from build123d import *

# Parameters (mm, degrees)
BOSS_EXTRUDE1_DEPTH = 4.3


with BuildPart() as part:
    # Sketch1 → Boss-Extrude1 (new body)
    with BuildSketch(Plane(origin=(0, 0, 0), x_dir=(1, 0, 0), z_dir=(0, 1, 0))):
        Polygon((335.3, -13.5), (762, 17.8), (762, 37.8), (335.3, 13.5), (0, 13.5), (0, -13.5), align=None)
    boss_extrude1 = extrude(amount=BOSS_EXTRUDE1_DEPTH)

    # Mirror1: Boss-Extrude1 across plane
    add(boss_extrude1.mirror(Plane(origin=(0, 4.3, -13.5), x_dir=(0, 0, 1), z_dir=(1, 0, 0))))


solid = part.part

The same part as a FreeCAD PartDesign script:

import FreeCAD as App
import Part
import Sketcher
from FreeCAD import Vector
Q = App.Units.Quantity

doc = App.newDocument("Part")
body = doc.addObject("PartDesign::Body", "Body")

sketch1 = body.newObject("Sketcher::SketchObject", "Sketch")
sketch1.AttachmentSupport = (doc.getObject("XZ_Plane"), [""])
sketch1.MapMode = "FlatFace"
sketch1.addGeometry([
    Part.LineSegment(Vector(335, 14, 0), Vector(762, -18, 0)),
    Part.LineSegment(Vector(762, -18, 0), Vector(762, -38, 0)),
    Part.LineSegment(Vector(762, -38, 0), Vector(335, -14, 0)),
    Part.LineSegment(Vector(335, -14, 0), Vector(0, -14, 0)),
    Part.LineSegment(Vector(0, -14, 0), Vector(0, 14, 0)),
    Part.LineSegment(Vector(0, 14, 0), Vector(335, 14, 0)),
], False)
sketch1.addConstraint([
    Sketcher.Constraint("Coincident", 0, 2, 1, 1),
    Sketcher.Constraint("Coincident", 1, 2, 2, 1),
    Sketcher.Constraint("Coincident", 2, 2, 3, 1),
    Sketcher.Constraint("Coincident", 3, 2, 4, 1),
    Sketcher.Constraint("Coincident", 4, 2, 5, 1),
    Sketcher.Constraint("Coincident", 5, 2, 0, 1),
    Sketcher.Constraint("Vertical", 1),
    Sketcher.Constraint("Horizontal", 3),
    Sketcher.Constraint("Vertical", 4),
    Sketcher.Constraint("Horizontal", 5),
    Sketcher.Constraint("Symmetric", 3, 2, 4, 2, -1, 1),
    Sketcher.Constraint("Vertical", 2, 2, 5, 2),
    Sketcher.Constraint("DistanceY", 1, 2, 1, 1, Q("20 mm")),
    Sketcher.Constraint("DistanceY", 4, 1, 4, 2, Q("27 mm")),
    Sketcher.Constraint("DistanceX", 3, 2, 3, 1, Q("335.3 mm")),
    Sketcher.Constraint("DistanceX", -1, 1, 0, 2, Q("762 mm")),
    Sketcher.Constraint("DistanceY", 0, 2, -1, 1, Q("17.8 mm")),
])
pad1 = body.newObject("PartDesign::Pad", "Pad")
pad1.Profile = sketch1
pad1.Length = 4.3
pad1.Reversed = True
doc.recompute()

mirrored = body.newObject("PartDesign::Mirrored", "Mirrored")
mirrored.Originals = [pad1]
mirrored.MirrorPlane = (doc.getObject("YZ_Plane"), [""])
body.Tip = mirrored

doc.recompute()
